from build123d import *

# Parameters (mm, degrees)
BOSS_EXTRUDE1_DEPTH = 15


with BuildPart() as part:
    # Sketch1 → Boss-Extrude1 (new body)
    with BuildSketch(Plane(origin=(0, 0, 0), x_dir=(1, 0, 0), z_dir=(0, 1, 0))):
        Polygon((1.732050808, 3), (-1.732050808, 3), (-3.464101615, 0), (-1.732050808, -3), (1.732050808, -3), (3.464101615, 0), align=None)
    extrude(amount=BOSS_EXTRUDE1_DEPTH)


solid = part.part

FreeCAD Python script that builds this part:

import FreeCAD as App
import Part
import Sketcher
Q = App.Units.Quantity


def add_polygon(sketch, points):
    """Adds a closed chain of lines whose ends are joined by coincident constraints."""
    first, n = sketch.GeometryCount, len(points)
    for a, b in zip(points, points[1:] + points[:1]):
        sketch.addGeometry(Part.LineSegment(App.Vector(*a, 0), App.Vector(*b, 0)), False)
    for i in range(n):
        sketch.addConstraint(Sketcher.Constraint("Coincident", first + i, 2, first + (i + 1) % n, 1))

doc = App.newDocument("Part")
params = doc.addObject("Spreadsheet::Sheet", "Params")
for row, (alias, value) in enumerate([
    ("pad1_length", "15 mm"),
], start=1):
    params.set(f"A{row}", alias)
    params.set(f"B{row}", "=" + value)
    params.setAlias(f"B{row}", alias)

body = doc.addObject("PartDesign::Body", "Body")

# Sketch on XZ plane
sketch1 = doc.addObject("Sketcher::SketchObject", "Sketch")
body.addObject(sketch1)
sketch1.AttachmentSupport = (doc.XZ_Plane, [""])
sketch1.MapMode = "FlatFace"
add_polygon(sketch1, [(1.732051, -3), (-1.732051, -3), (-3.464102, 0), (-1.732051, 3), (1.732051, 3), (3.464102, 0)])  # lines 0-5
sketch1.addConstraint(Sketcher.Constraint("Horizontal", 0))
sketch1.addConstraint(Sketcher.Constraint("Horizontal", 3))
sketch1.addConstraint(Sketcher.Constraint("Symmetric", 0, 2, 3, 2, -1, 1))
sketch1.addConstraint(Sketcher.Constraint("Symmetric", 1, 2, 4, 2, -1, 1))
sketch1.addConstraint(Sketcher.Constraint("PointOnObject", 1, 2, -1))
sketch1.addConstraint(Sketcher.Constraint("Parallel", 2, 5))
sketch1.addConstraint(Sketcher.Constraint("Vertical", 0, 2, 2, 2))
sketch1.addConstraint(Sketcher.Constraint("Angle", 1, Q("120 deg")))
sketch1.addConstraint(Sketcher.Constraint("DistanceY", 0, 2, -1, 1, 3.0))
sketch1.addConstraint(Sketcher.Constraint("DistanceX", 0, 2, 0, 1, 3.464102))
pad1 = doc.addObject("PartDesign::Pad", "Pad")
body.addObject(pad1)
pad1.Profile = sketch1
pad1.setExpression("Length", "Params.pad1_length")
pad1.Reversed = True

doc.recompute()
